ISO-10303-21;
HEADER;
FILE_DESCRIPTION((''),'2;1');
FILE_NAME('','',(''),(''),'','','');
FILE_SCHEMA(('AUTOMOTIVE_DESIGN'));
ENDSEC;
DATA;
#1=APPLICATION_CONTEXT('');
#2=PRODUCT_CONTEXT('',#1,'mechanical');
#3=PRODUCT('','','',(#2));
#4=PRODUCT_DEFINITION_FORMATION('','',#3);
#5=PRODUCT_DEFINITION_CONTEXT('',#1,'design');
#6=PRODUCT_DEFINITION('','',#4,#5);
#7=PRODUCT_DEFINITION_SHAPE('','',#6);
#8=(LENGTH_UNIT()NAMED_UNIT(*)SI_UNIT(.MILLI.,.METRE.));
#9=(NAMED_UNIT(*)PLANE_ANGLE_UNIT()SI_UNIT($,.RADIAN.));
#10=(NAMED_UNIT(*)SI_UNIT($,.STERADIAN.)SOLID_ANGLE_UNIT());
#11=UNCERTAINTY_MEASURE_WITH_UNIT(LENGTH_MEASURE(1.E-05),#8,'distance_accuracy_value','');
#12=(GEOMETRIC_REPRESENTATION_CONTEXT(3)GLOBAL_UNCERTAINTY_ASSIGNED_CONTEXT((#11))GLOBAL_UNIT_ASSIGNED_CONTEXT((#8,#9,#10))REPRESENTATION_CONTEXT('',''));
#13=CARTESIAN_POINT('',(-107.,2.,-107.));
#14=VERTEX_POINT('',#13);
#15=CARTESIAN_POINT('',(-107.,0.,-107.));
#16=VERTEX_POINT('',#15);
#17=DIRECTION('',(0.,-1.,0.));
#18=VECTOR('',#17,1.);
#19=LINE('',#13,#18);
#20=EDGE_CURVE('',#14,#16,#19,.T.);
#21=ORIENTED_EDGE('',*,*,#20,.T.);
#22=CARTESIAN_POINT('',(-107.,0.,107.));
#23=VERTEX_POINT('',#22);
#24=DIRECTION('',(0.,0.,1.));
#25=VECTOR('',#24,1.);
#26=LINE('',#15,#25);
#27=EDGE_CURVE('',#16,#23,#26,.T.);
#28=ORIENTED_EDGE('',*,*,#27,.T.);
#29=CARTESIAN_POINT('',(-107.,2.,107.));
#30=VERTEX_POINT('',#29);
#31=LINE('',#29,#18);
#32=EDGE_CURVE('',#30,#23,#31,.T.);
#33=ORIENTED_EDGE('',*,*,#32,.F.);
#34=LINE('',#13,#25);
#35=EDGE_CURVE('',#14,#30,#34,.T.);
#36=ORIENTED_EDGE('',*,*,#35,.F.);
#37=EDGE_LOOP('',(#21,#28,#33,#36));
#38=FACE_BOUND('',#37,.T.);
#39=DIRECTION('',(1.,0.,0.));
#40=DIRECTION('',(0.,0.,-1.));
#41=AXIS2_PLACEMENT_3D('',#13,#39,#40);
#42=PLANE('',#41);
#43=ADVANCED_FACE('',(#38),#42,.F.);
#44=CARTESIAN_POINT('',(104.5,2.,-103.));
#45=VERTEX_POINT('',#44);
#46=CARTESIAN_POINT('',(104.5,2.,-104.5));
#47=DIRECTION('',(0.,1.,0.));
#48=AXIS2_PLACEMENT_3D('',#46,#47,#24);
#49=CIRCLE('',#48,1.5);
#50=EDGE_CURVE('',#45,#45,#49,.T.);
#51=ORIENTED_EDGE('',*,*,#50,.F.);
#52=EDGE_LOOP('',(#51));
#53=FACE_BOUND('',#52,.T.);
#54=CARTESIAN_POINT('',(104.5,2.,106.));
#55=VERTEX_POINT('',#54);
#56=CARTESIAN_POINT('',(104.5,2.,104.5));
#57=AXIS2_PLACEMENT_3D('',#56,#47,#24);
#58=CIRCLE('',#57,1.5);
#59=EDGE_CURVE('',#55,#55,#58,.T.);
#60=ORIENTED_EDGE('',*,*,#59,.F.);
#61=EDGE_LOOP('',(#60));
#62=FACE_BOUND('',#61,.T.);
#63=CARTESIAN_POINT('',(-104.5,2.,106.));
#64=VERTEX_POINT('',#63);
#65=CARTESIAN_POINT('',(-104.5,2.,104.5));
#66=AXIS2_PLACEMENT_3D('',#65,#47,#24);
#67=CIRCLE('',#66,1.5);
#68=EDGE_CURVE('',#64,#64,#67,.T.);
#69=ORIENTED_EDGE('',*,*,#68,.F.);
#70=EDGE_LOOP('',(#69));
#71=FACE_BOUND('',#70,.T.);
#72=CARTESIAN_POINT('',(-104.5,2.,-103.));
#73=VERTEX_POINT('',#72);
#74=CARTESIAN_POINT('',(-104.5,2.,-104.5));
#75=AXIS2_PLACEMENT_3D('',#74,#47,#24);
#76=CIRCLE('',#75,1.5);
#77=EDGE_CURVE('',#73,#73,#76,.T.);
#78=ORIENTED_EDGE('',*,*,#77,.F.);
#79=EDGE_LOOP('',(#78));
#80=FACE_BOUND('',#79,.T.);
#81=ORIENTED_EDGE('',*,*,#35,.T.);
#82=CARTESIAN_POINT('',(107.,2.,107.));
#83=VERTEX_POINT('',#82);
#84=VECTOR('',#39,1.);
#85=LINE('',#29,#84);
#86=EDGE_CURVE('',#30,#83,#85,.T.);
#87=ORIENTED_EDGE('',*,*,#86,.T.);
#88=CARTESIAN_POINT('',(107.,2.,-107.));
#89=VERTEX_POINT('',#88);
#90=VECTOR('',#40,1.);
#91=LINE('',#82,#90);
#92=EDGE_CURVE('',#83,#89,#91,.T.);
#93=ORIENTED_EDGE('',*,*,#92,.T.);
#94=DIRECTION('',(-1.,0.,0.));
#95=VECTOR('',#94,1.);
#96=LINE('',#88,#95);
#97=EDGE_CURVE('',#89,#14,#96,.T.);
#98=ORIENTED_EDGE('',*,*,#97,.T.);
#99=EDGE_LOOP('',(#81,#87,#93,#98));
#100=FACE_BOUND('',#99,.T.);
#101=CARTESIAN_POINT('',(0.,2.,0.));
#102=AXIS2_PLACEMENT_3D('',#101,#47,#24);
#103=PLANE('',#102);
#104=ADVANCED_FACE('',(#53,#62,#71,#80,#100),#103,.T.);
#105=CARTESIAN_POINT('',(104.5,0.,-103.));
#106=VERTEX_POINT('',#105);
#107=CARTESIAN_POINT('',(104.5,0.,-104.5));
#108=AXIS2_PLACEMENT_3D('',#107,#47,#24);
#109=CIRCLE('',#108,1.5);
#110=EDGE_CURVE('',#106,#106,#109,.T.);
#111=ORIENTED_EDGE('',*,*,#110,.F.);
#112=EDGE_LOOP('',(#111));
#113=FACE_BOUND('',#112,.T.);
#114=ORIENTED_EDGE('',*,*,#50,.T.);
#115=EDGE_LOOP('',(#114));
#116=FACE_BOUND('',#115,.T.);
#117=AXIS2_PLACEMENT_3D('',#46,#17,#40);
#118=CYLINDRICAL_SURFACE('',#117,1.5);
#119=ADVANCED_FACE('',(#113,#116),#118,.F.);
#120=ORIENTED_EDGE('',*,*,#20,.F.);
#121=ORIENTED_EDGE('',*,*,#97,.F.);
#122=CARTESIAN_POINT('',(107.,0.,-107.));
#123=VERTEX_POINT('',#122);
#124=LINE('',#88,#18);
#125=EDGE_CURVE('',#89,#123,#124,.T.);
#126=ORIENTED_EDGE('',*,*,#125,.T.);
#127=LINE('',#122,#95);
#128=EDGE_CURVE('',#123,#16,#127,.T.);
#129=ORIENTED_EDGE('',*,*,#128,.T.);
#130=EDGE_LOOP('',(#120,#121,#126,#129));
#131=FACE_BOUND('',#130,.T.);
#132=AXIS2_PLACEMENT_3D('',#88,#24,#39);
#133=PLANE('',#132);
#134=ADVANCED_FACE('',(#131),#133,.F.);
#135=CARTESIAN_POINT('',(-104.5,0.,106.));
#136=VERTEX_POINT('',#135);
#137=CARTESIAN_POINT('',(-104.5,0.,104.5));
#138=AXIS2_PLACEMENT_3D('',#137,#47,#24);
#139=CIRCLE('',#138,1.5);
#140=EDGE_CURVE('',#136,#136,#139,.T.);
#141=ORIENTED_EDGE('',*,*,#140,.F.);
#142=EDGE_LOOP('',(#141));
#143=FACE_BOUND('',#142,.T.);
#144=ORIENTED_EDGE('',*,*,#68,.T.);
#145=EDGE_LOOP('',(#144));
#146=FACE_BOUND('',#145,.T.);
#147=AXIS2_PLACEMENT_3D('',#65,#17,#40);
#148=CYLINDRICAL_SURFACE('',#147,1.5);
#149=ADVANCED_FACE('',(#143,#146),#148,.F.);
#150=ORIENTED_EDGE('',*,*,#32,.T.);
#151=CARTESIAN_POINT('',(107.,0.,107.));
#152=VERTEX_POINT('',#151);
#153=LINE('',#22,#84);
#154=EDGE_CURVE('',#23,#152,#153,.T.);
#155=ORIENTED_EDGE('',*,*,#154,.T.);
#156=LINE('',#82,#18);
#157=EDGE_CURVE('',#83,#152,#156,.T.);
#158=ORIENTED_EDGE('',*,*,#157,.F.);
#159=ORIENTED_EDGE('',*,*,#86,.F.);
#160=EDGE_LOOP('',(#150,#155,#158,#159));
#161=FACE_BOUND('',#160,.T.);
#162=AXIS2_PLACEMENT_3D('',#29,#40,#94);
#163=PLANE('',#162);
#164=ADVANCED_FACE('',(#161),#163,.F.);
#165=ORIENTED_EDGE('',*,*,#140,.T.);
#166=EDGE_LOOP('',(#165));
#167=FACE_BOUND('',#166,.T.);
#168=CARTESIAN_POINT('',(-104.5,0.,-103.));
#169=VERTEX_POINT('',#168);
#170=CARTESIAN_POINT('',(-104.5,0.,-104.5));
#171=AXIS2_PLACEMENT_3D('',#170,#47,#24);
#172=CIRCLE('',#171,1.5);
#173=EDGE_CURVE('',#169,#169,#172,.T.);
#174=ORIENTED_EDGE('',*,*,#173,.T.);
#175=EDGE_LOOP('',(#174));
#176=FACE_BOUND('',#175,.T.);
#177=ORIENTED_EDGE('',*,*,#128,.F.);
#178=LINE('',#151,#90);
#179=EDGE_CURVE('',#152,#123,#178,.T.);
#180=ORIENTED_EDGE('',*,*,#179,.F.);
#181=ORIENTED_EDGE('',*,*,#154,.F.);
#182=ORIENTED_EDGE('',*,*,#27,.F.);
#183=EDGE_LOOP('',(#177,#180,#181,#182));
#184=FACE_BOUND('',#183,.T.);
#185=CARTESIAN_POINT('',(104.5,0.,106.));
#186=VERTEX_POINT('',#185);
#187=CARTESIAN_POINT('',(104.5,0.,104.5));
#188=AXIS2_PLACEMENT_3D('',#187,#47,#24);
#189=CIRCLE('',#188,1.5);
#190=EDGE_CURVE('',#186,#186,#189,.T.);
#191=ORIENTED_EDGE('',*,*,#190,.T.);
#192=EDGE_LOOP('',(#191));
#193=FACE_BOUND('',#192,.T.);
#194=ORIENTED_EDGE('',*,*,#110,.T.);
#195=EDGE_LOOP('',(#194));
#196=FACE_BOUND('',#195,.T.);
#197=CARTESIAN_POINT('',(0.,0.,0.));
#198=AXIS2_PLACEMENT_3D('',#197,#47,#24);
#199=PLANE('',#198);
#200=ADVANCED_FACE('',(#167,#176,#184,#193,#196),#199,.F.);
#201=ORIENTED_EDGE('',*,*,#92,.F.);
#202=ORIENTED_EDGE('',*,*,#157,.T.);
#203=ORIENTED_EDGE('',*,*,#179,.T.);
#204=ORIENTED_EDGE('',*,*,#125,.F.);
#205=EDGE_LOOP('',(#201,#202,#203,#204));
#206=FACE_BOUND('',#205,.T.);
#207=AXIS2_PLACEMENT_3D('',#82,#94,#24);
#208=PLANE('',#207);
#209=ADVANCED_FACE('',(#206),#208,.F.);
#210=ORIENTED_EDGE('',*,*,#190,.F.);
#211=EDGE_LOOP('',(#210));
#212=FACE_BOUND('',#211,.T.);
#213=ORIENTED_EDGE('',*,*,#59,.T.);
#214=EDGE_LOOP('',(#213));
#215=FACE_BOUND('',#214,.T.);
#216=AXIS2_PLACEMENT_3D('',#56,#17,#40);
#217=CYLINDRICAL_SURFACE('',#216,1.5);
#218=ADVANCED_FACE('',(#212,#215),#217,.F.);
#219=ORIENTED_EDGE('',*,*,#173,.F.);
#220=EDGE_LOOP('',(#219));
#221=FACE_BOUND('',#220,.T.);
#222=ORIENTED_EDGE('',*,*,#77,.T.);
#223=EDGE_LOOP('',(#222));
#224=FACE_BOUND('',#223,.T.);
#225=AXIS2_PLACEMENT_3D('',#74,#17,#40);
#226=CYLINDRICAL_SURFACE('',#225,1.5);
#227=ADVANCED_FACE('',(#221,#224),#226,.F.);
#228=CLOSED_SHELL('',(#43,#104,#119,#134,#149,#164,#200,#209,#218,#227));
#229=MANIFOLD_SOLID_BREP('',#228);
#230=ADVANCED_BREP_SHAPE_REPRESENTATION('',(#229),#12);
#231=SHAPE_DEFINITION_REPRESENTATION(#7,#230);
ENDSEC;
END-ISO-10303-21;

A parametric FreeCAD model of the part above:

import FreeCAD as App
import Part
import Sketcher
from FreeCAD import Vector
Q = App.Units.Quantity

doc = App.newDocument("Part")
body = doc.addObject("PartDesign::Body", "Body")

# Sketch on XZ plane
sketch1 = body.newObject("Sketcher::SketchObject", "Sketch")
sketch1.AttachmentSupport = (doc.getObject("XZ_Plane"), [""])
sketch1.MapMode = "FlatFace"
sketch1.addGeometry(Part.LineSegment(Vector(-107, -107, 0), Vector(-107, 107, 0)), False)
sketch1.addGeometry(Part.LineSegment(Vector(-107, 107, 0), Vector(107, 107, 0)), False)
sketch1.addGeometry(Part.LineSegment(Vector(107, 107, 0), Vector(107, -107, 0)), False)
sketch1.addGeometry(Part.LineSegment(Vector(107, -107, 0), Vector(-107, -107, 0)), False)
sketch1.addGeometry(Part.Circle(Vector(-104.5, 104.5, 0), Vector(0, 0, 1), 1.5), False)
sketch1.addGeometry(Part.Circle(Vector(104.5, 104.5, 0), Vector(0, 0, 1), 1.5), False)
sketch1.addGeometry(Part.Circle(Vector(-104.5, -104.5, 0), Vector(0, 0, 1), 1.5), False)
sketch1.addGeometry(Part.Circle(Vector(104.5, -104.5, 0), Vector(0, 0, 1), 1.5), False)
sketch1.addConstraint(Sketcher.Constraint("Coincident", 0, 2, 1, 1))
sketch1.addConstraint(Sketcher.Constraint("Coincident", 1, 2, 2, 1))
sketch1.addConstraint(Sketcher.Constraint("Coincident", 2, 2, 3, 1))
sketch1.addConstraint(Sketcher.Constraint("Coincident", 3, 2, 0, 1))
sketch1.addConstraint(Sketcher.Constraint("Vertical", 0))
sketch1.addConstraint(Sketcher.Constraint("Horizontal", 1))
sketch1.addConstraint(Sketcher.Constraint("Vertical", 2))
sketch1.addConstraint(Sketcher.Constraint("Horizontal", 3))
sketch1.addConstraint(Sketcher.Constraint("Equal", 4, 5))
sketch1.addConstraint(Sketcher.Constraint("Equal", 5, 6))
sketch1.addConstraint(Sketcher.Constraint("Equal", 6, 7))
sketch1.addConstraint(Sketcher.Constraint("Symmetric", 5, 3, 6, 3, -1, 1))
sketch1.addConstraint(Sketcher.Constraint("Symmetric", 4, 3, 7, 3, -1, 1))
sketch1.addConstraint(Sketcher.Constraint("Symmetric", 0, 2, 2, 2, -1, 1))
sketch1.addConstraint(Sketcher.Constraint("Symmetric", 4, 3, 5, 3, -2))
sketch1.addConstraint(Sketcher.Constraint("Equal", 3, 0))
sketch1.addConstraint(Sketcher.Constraint("Diameter", 4, Q("3 mm")))
sketch1.addConstraint(Sketcher.Constraint("DistanceX", 1, 1, 1, 2, Q("214 mm")))
sketch1.addConstraint(Sketcher.Constraint("DistanceX", 4, 3, 5, 3, Q("209 mm")))
sketch1.addConstraint(Sketcher.Constraint("DistanceY", 6, 3, 4, 3, Q("209 mm")))
pad1 = body.newObject("PartDesign::Pad", "Pad")
pad1.Profile = sketch1
pad1.Length = 2
pad1.Reversed = True

doc.recompute()
